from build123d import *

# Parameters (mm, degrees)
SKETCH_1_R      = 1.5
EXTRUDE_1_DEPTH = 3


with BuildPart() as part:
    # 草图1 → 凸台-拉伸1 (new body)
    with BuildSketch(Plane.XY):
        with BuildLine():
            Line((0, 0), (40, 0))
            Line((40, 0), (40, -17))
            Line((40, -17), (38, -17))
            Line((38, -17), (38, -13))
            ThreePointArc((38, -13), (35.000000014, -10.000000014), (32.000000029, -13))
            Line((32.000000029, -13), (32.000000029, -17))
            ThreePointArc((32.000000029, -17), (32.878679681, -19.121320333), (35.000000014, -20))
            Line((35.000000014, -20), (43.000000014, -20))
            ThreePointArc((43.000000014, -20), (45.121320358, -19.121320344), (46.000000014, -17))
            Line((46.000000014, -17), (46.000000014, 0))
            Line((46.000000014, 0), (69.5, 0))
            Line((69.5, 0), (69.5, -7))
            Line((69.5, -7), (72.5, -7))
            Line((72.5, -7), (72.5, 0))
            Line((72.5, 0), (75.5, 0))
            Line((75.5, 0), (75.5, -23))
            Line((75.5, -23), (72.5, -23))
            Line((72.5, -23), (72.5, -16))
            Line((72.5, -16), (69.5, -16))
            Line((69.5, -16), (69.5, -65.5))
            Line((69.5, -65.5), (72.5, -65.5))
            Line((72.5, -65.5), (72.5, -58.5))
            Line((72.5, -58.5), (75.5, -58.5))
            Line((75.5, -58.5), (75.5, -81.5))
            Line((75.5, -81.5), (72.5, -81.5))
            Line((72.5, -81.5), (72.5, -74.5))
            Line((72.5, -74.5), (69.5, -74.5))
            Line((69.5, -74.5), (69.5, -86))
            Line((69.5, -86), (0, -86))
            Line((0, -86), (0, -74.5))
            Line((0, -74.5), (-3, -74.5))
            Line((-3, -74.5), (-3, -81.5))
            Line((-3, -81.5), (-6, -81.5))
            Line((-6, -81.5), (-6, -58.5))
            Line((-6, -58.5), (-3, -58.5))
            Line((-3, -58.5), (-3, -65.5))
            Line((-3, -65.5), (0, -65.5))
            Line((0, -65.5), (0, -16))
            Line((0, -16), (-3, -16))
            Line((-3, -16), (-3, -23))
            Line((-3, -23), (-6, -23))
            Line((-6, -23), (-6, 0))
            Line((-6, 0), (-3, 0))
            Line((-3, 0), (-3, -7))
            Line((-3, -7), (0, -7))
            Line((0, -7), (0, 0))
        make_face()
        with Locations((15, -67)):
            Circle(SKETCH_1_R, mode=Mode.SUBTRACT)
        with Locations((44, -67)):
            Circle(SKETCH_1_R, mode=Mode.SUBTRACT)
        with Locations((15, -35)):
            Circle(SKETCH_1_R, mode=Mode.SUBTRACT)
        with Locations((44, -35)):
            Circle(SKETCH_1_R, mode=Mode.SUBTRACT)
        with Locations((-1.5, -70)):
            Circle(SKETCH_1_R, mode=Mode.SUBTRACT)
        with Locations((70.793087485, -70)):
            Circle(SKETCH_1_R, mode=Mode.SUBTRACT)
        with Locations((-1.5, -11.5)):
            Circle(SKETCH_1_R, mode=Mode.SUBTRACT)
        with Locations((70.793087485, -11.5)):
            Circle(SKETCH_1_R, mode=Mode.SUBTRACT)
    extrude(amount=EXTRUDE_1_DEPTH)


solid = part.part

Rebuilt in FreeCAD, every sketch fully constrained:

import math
import FreeCAD as App
import Part
import Sketcher

V = App.Vector
Q = App.Units.Quantity

doc = App.newDocument("Part")
body = doc.addObject("PartDesign::Body", "Body")

sketch1 = body.newObject("Sketcher::SketchObject", "Sketch")
sketch1.AttachmentSupport = (doc.getObject("XY_Plane"), [""])
sketch1.MapMode = "FlatFace"
sketch1.addGeometry([
    Part.LineSegment(V(40, 0, 0), V(0, 0, 0)),
    Part.LineSegment(V(0, 0, 0), V(0, -7, 0)),
    Part.LineSegment(V(0, -7, 0), V(-3, -7, 0)),
    Part.LineSegment(V(-3, -7, 0), V(-3, 0, 0)),
    Part.LineSegment(V(-3, 0, 0), V(-6, 0, 0)),
    Part.LineSegment(V(-6, 0, 0), V(-6, -23, 0)),
    Part.LineSegment(V(-6, -23, 0), V(-3, -23, 0)),
    Part.LineSegment(V(-3, -23, 0), V(-3, -16, 0)),
    Part.LineSegment(V(-3, -16, 0), V(0, -16, 0)),
    Part.LineSegment(V(0, -16, 0), V(0, -65.5, 0)),
    Part.LineSegment(V(0, -65.5, 0), V(-3, -65.5, 0)),
    Part.LineSegment(V(-3, -65.5, 0), V(-3, -58.5, 0)),
    Part.LineSegment(V(-3, -58.5, 0), V(-6, -58.5, 0)),
    Part.LineSegment(V(-6, -58.5, 0), V(-6, -81.5, 0)),
    Part.LineSegment(V(-6, -81.5, 0), V(-3, -81.5, 0)),
    Part.LineSegment(V(-3, -81.5, 0), V(-3, -74.5, 0)),
    Part.LineSegment(V(-3, -74.5, 0), V(0, -74.5, 0)),
    Part.LineSegment(V(0, -74.5, 0), V(0, -86, 0)),
    Part.LineSegment(V(0, -86, 0), V(69.5, -86, 0)),
    Part.LineSegment(V(69.5, -86, 0), V(69.5, -74.5, 0)),
    Part.LineSegment(V(69.5, -74.5, 0), V(72.5, -74.5, 0)),
    Part.LineSegment(V(72.5, -74.5, 0), V(72.5, -81.5, 0)),
    Part.LineSegment(V(72.5, -81.5, 0), V(75.5, -81.5, 0)),
    Part.LineSegment(V(75.5, -81.5, 0), V(75.5, -58.5, 0)),
    Part.LineSegment(V(75.5, -58.5, 0), V(72.5, -58.5, 0)),
    Part.LineSegment(V(72.5, -58.5, 0), V(72.5, -65.5, 0)),
    Part.LineSegment(V(72.5, -65.5, 0), V(69.5, -65.5, 0)),
    Part.LineSegment(V(69.5, -65.5, 0), V(69.5, -16, 0)),
    Part.LineSegment(V(69.5, -16, 0), V(72.5, -16, 0)),
    Part.LineSegment(V(72.5, -16, 0), V(72.5, -23, 0)),
    Part.LineSegment(V(72.5, -23, 0), V(75.5, -23, 0)),
    Part.LineSegment(V(75.5, -23, 0), V(75.5, 0, 0)),
    Part.LineSegment(V(75.5, 0, 0), V(72.5, 0, 0)),
    Part.LineSegment(V(72.5, 0, 0), V(72.5, -7, 0)),
    Part.LineSegment(V(72.5, -7, 0), V(69.5, -7, 0)),
    Part.LineSegment(V(69.5, -7, 0), V(69.5, 0, 0)),
    Part.LineSegment(V(69.5, 0, 0), V(46, 0, 0)),
    Part.LineSegment(V(46, 0, 0), V(46, -17, 0)),
    Part.ArcOfCircle(Part.Circle(V(43, -17, 0), V(0, 0, 1), 3), math.radians(-90), math.radians(0)),
    Part.LineSegment(V(43, -20, 0), V(35, -20, 0)),
    Part.ArcOfCircle(Part.Circle(V(35, -17, 0), V(0, 0, 1), 3), math.radians(-180), math.radians(-90)),
    Part.LineSegment(V(32, -17, 0), V(32, -13, 0)),
    Part.ArcOfCircle(Part.Circle(V(35, -13, 0), V(0, 0, 1), 3), math.radians(0), math.radians(180)),
    Part.LineSegment(V(38, -13, 0), V(38, -17, 0)),
    Part.LineSegment(V(38, -17, 0), V(40, -17, 0)),
    Part.LineSegment(V(40, -17, 0), V(40, 0, 0)),
    Part.Circle(V(70.8, -70, 0), V(0, 0, 1), 1.5),
    Part.Circle(V(44, -67, 0), V(0, 0, 1), 1.5),
    Part.Circle(V(15, -67, 0), V(0, 0, 1), 1.5),
    Part.Circle(V(-1.5, -70, 0), V(0, 0, 1), 1.5),
    Part.Circle(V(44, -35, 0), V(0, 0, 1), 1.5),
    Part.Circle(V(70.8, -11.5, 0), V(0, 0, 1), 1.5),
    Part.Circle(V(15, -35, 0), V(0, 0, 1), 1.5),
    Part.Circle(V(-1.5, -11.5, 0), V(0, 0, 1), 1.5),
], False)
sketch1.addConstraint([
    Sketcher.Constraint("Coincident", 0, 2, 1, 1),
    Sketcher.Constraint("Coincident", 1, 2, 2, 1),
    Sketcher.Constraint("Coincident", 2, 2, 3, 1),
    Sketcher.Constraint("Coincident", 3, 2, 4, 1),
    Sketcher.Constraint("Coincident", 4, 2, 5, 1),
    Sketcher.Constraint("Coincident", 5, 2, 6, 1),
    Sketcher.Constraint("Coincident", 6, 2, 7, 1),
    Sketcher.Constraint("Coincident", 7, 2, 8, 1),
    Sketcher.Constraint("Coincident", 8, 2, 9, 1),
    Sketcher.Constraint("Coincident", 9, 2, 10, 1),
    Sketcher.Constraint("Coincident", 10, 2, 11, 1),
    Sketcher.Constraint("Coincident", 11, 2, 12, 1),
    Sketcher.Constraint("Coincident", 12, 2, 13, 1),
    Sketcher.Constraint("Coincident", 13, 2, 14, 1),
    Sketcher.Constraint("Coincident", 14, 2, 15, 1),
    Sketcher.Constraint("Coincident", 15, 2, 16, 1),
    Sketcher.Constraint("Coincident", 16, 2, 17, 1),
    Sketcher.Constraint("Coincident", 17, 2, 18, 1),
    Sketcher.Constraint("Coincident", 18, 2, 19, 1),
    Sketcher.Constraint("Coincident", 19, 2, 20, 1),
    Sketcher.Constraint("Coincident", 20, 2, 21, 1),
    Sketcher.Constraint("Coincident", 21, 2, 22, 1),
    Sketcher.Constraint("Coincident", 22, 2, 23, 1),
    Sketcher.Constraint("Coincident", 23, 2, 24, 1),
    Sketcher.Constraint("Coincident", 24, 2, 25, 1),
    Sketcher.Constraint("Coincident", 25, 2, 26, 1),
    Sketcher.Constraint("Coincident", 26, 2, 27, 1),
    Sketcher.Constraint("Coincident", 27, 2, 28, 1),
    Sketcher.Constraint("Coincident", 28, 2, 29, 1),
    Sketcher.Constraint("Coincident", 29, 2, 30, 1),
    Sketcher.Constraint("Coincident", 30, 2, 31, 1),
    Sketcher.Constraint("Coincident", 31, 2, 32, 1),
    Sketcher.Constraint("Coincident", 32, 2, 33, 1),
    Sketcher.Constraint("Coincident", 33, 2, 34, 1),
    Sketcher.Constraint("Coincident", 34, 2, 35, 1),
    Sketcher.Constraint("Coincident", 35, 2, 36, 1),
    Sketcher.Constraint("Coincident", 36, 2, 37, 1),
    Sketcher.Constraint("Tangent", 37, 2, 38, 2),
    Sketcher.Constraint("Tangent", 38, 1, 39, 1),
    Sketcher.Constraint("Tangent", 39, 2, 40, 2),
    Sketcher.Constraint("Tangent", 40, 1, 41, 1),
    Sketcher.Constraint("Tangent", 41, 2, 42, 2),
    Sketcher.Constraint("Tangent", 42, 1, 43, 1),
    Sketcher.Constraint("Coincident", 43, 2, 44, 1),
    Sketcher.Constraint("Coincident", 44, 2, 45, 1),
    Sketcher.Constraint("Coincident", 45, 2, 0, 1),
    Sketcher.Constraint("Horizontal", 0),
    Sketcher.Constraint("Vertical", 1),
    Sketcher.Constraint("Horizontal", 2),
    Sketcher.Constraint("Vertical", 3),
    Sketcher.Constraint("Horizontal", 4),
    Sketcher.Constraint("Vertical", 5),
    Sketcher.Constraint("Horizontal", 6),
    Sketcher.Constraint("Vertical", 7),
    Sketcher.Constraint("Horizontal", 8),
    Sketcher.Constraint("Vertical", 9),
    Sketcher.Constraint("Horizontal", 10),
    Sketcher.Constraint("Vertical", 11),
    Sketcher.Constraint("Horizontal", 12),
    Sketcher.Constraint("Vertical", 13),
    Sketcher.Constraint("Horizontal", 14),
    Sketcher.Constraint("Vertical", 15),
    Sketcher.Constraint("Horizontal", 16),
    Sketcher.Constraint("Vertical", 17),
    Sketcher.Constraint("Horizontal", 18),
    Sketcher.Constraint("Vertical", 19),
    Sketcher.Constraint("Horizontal", 20),
    Sketcher.Constraint("Vertical", 21),
    Sketcher.Constraint("Horizontal", 22),
    Sketcher.Constraint("Vertical", 23),
    Sketcher.Constraint("Horizontal", 24),
    Sketcher.Constraint("Vertical", 25),
    Sketcher.Constraint("Horizontal", 26),
    Sketcher.Constraint("Vertical", 27),
    Sketcher.Constraint("Horizontal", 28),
    Sketcher.Constraint("Vertical", 29),
    Sketcher.Constraint("Horizontal", 30),
    Sketcher.Constraint("Vertical", 31),
    Sketcher.Constraint("Horizontal", 32),
    Sketcher.Constraint("Vertical", 33),
    Sketcher.Constraint("Horizontal", 34),
    Sketcher.Constraint("Vertical", 35),
    Sketcher.Constraint("Horizontal", 36),
    Sketcher.Constraint("Vertical", 37),
    Sketcher.Constraint("Horizontal", 39),
    Sketcher.Constraint("Vertical", 41),
    Sketcher.Constraint("Vertical", 43),
    Sketcher.Constraint("Horizontal", 44),
    Sketcher.Constraint("Vertical", 45),
    Sketcher.Constraint("Coincident", 0, 2, -1, 1),
    Sketcher.Constraint("Equal", 38, 40),
    Sketcher.Constraint("Equal", 40, 42),
    Sketcher.Constraint("Equal", 46, 47),
    Sketcher.Constraint("Equal", 47, 48),
    Sketcher.Constraint("Equal", 48, 49),
    Sketcher.Constraint("Equal", 49, 50),
    Sketcher.Constraint("Equal", 50, 51),
    Sketcher.Constraint("Equal", 51, 52),
    Sketcher.Constraint("Equal", 52, 53),
    Sketcher.Constraint("PointOnObject", 3, 2, -1),
    Sketcher.Constraint("PointOnObject", 8, 2, -2),
    Sketcher.Constraint("PointOnObject", 16, 2, -2),
    Sketcher.Constraint("PointOnObject", 31, 2, -1),
    Sketcher.Constraint("PointOnObject", 35, 2, -1),
    Sketcher.Constraint("Horizontal", 47, 3, 48, 3),
    Sketcher.Constraint("Horizontal", 46, 3, 49, 3),
    Sketcher.Constraint("Horizontal", 50, 3, 52, 3),
    Sketcher.Constraint("Horizontal", 51, 3, 53, 3),
    Sketcher.Constraint("Horizontal", 16, 2, 19, 2),
    Sketcher.Constraint("Horizontal", 14, 2, 21, 2),
    Sketcher.Constraint("Horizontal", 12, 2, 23, 2),
    Sketcher.Constraint("Horizontal", 10, 2, 25, 2),
    Sketcher.Constraint("Horizontal", 8, 2, 27, 2),
    Sketcher.Constraint("Horizontal", 6, 2, 29, 2),
    Sketcher.Constraint("Horizontal", 2, 2, 33, 2),
    Sketcher.Constraint("Horizontal", 40, 1, 43, 2),
    Sketcher.Constraint("Vertical", 47, 3, 50, 3),
    Sketcher.Constraint("Vertical", 46, 3, 51, 3),
    Sketcher.Constraint("Vertical", 48, 3, 52, 3),
    Sketcher.Constraint("Vertical", 49, 3, 53, 3),
    Sketcher.Constraint("Vertical", 3, 2, 6, 2),
    Sketcher.Constraint("Vertical", 7, 2, 10, 2),
    Sketcher.Constraint("Vertical", 5, 2, 12, 2),
    Sketcher.Constraint("Vertical", 11, 2, 14, 2),
    Sketcher.Constraint("Vertical", 21, 2, 24, 2),
    Sketcher.Constraint("Vertical", 19, 2, 26, 2),
    Sketcher.Constraint("Vertical", 25, 2, 28, 2),
    Sketcher.Constraint("Vertical", 23, 2, 30, 2),
    Sketcher.Constraint("Vertical", 29, 2, 32, 2),
    Sketcher.Constraint("Vertical", 27, 2, 34, 2),
    Sketcher.Constraint("Equal", 2, 4),
    Sketcher.Constraint("Equal", 16, 20),
    Sketcher.Constraint("Equal", 20, 22),
    Sketcher.Constraint("Equal", 3, 7),
    Sketcher.Constraint("Equal", 7, 11),
    Sketcher.Constraint("Equal", 5, 13),
    Sketcher.Constraint("Equal", 11, 15),
    Sketcher.Constraint("Diameter", 46, Q("3 mm")),
    Sketcher.Constraint("Radius", 38, Q("3 mm")),
    Sketcher.Constraint("DistanceX", 0, 2, 0, 1, Q("40 mm")),
    Sketcher.Constraint("DistanceX", 2, 2, 2, 1, Q("3 mm")),
    Sketcher.Constraint("DistanceX", 39, 2, 39, 1, Q("8 mm")),
    Sketcher.Constraint("DistanceX", 44, 1, 44, 2, Q("2 mm")),
    Sketcher.Constraint("DistanceY", 1, 2, 1, 1, Q("7 mm")),
    Sketcher.Constraint("DistanceY", 5, 2, 5, 1, Q("23 mm")),
    Sketcher.Constraint("DistanceY", 37, 2, 37, 1, Q("17 mm")),
    Sketcher.Constraint("DistanceY", 41, 1, 41, 2, Q("4 mm")),
    Sketcher.Constraint("DistanceX", 18, 1, 18, 2, Q("69.5 mm")),
    Sketcher.Constraint("DistanceY", 9, 2, 9, 1, Q("49.5 mm")),
    Sketcher.Constraint("DistanceY", 17, 2, 17, 1, Q("11.5 mm")),
    Sketcher.Constraint("DistanceY", 46, 3, -1, 1, Q("70 mm")),
    Sketcher.Constraint("DistanceX", -1, 1, 47, 3, Q("44 mm")),
    Sketcher.Constraint("DistanceY", 47, 3, -1, 1, Q("67 mm")),
    Sketcher.Constraint("DistanceX", -1, 1, 48, 3, Q("15 mm")),
    Sketcher.Constraint("DistanceY", 50, 3, -1, 1, Q("35 mm")),
    Sketcher.Constraint("DistanceX", 49, 3, -1, 1, Q("1.5 mm")),
    Sketcher.Constraint("DistanceY", 51, 3, -1, 1, Q("11.5 mm")),
    Sketcher.Constraint("DistanceX", -1, 1, 46, 3, Q("70.793087 mm")),
])
pad1 = body.newObject("PartDesign::Pad", "Pad")
pad1.Profile = sketch1
pad1.Length = 3

doc.recompute()
